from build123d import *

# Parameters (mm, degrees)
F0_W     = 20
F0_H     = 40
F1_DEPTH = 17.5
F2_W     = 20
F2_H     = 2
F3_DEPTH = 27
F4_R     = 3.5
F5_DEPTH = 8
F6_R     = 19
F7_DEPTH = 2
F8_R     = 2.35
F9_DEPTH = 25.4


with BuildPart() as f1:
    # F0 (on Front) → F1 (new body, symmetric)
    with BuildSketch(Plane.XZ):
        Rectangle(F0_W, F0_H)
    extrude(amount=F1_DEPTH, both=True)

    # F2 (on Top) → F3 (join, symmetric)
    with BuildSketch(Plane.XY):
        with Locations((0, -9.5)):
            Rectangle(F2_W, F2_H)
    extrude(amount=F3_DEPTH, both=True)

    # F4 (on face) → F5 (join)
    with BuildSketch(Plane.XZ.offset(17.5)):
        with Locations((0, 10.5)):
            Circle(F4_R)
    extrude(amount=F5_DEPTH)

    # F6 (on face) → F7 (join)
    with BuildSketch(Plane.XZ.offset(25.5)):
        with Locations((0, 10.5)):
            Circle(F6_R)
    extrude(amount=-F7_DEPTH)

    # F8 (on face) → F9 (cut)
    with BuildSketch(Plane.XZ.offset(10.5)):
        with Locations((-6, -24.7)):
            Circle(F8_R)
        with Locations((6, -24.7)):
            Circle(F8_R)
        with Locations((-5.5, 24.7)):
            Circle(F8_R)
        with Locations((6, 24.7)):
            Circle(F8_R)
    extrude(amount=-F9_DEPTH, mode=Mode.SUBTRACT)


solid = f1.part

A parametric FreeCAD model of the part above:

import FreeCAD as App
import Part
import Sketcher

doc = App.newDocument("Part")
body = doc.addObject("PartDesign::Body", "Body")

# Sketch on XZ plane
sketch1 = doc.addObject("Sketcher::SketchObject", "Sketch")
body.addObject(sketch1)
sketch1.AttachmentSupport = (doc.XZ_Plane, [""])
sketch1.MapMode = "FlatFace"
sketch1.addGeometry([
    Part.LineSegment(App.Vector(-10, 20, 0), App.Vector(-10, -20, 0)),
    Part.LineSegment(App.Vector(-10, -20, 0), App.Vector(10, -20, 0)),
    Part.LineSegment(App.Vector(10, -20, 0), App.Vector(10, 20, 0)),
    Part.LineSegment(App.Vector(10, 20, 0), App.Vector(-10, 20, 0)),
], False)
sketch1.addConstraint([
    Sketcher.Constraint("Coincident", 0, 2, 1, 1),
    Sketcher.Constraint("Coincident", 1, 2, 2, 1),
    Sketcher.Constraint("Coincident", 2, 2, 3, 1),
    Sketcher.Constraint("Coincident", 3, 2, 0, 1),
    Sketcher.Constraint("Vertical", 0),
    Sketcher.Constraint("Horizontal", 1),
    Sketcher.Constraint("Vertical", 2),
    Sketcher.Constraint("Horizontal", 3),
    Sketcher.Constraint("Symmetric", 0, 2, 2, 2, -1, 1),
    Sketcher.Constraint("DistanceX", 1, 1, 1, 2, 20.0),
    Sketcher.Constraint("DistanceY", 0, 2, 0, 1, 40.0),
])
pad1 = doc.addObject("PartDesign::Pad", "Pad")
body.addObject(pad1)
pad1.Profile = sketch1
pad1.Length = 35
pad1.Midplane = True

# Sketch on XY plane
sketch2 = doc.addObject("Sketcher::SketchObject", "Sketch001")
body.addObject(sketch2)
sketch2.AttachmentSupport = (doc.XY_Plane, [""])
sketch2.MapMode = "FlatFace"
sketch2.addGeometry([
    Part.LineSegment(App.Vector(-10, -8.5, 0), App.Vector(-10, -10.5, 0)),
    Part.LineSegment(App.Vector(-10, -10.5, 0), App.Vector(10, -10.5, 0)),
    Part.LineSegment(App.Vector(10, -10.5, 0), App.Vector(10, -8.5, 0)),
    Part.LineSegment(App.Vector(10, -8.5, 0), App.Vector(-10, -8.5, 0)),
], False)
sketch2.addConstraint([
    Sketcher.Constraint("Coincident", 0, 2, 1, 1),
    Sketcher.Constraint("Coincident", 1, 2, 2, 1),
    Sketcher.Constraint("Coincident", 2, 2, 3, 1),
    Sketcher.Constraint("Coincident", 3, 2, 0, 1),
    Sketcher.Constraint("Vertical", 0),
    Sketcher.Constraint("Horizontal", 1),
    Sketcher.Constraint("Vertical", 2),
    Sketcher.Constraint("Horizontal", 3),
    Sketcher.Constraint("DistanceX", 1, 1, 1, 2, 20.0),
    Sketcher.Constraint("DistanceY", 0, 2, 0, 1, 2.0),
    Sketcher.Constraint("DistanceX", 0, 2, -1, 1, 10.0),
    Sketcher.Constraint("DistanceY", 0, 2, -1, 1, 10.5),
])
pad2 = doc.addObject("PartDesign::Pad", "Pad001")
body.addObject(pad2)
pad2.Profile = sketch2
pad2.Length = 54
pad2.Midplane = True

# Sketch on XZ plane
sketch3 = doc.addObject("Sketcher::SketchObject", "Sketch002")
body.addObject(sketch3)
sketch3.AttachmentSupport = (doc.XZ_Plane, [""])
sketch3.MapMode = "FlatFace"
sketch3.AttachmentOffset = App.Placement(App.Vector(0, 0, 17.5), App.Rotation())
sketch3.addGeometry(Part.Circle(App.Vector(0, 10.5, 0), App.Vector(0, 0, 1), 3.5), False)
sketch3.addConstraint([
    Sketcher.Constraint("PointOnObject", 0, 3, -2),
    Sketcher.Constraint("Diameter", 0, 7.0),
    Sketcher.Constraint("DistanceY", -1, 1, 0, 3, 10.5),
])
pad3 = doc.addObject("PartDesign::Pad", "Pad002")
body.addObject(pad3)
pad3.Profile = sketch3
pad3.Length = 8

# Sketch on XZ plane
sketch4 = doc.addObject("Sketcher::SketchObject", "Sketch003")
body.addObject(sketch4)
sketch4.AttachmentSupport = (doc.XZ_Plane, [""])
sketch4.MapMode = "FlatFace"
sketch4.AttachmentOffset = App.Placement(App.Vector(0, 0, 25.5), App.Rotation())
sketch4.addGeometry(Part.Circle(App.Vector(0, 10, 0), App.Vector(0, 0, 1), 19), False)
sketch4.addConstraint([
    Sketcher.Constraint("PointOnObject", 0, 3, -2),
    Sketcher.Constraint("Diameter", 0, 38.0),
    Sketcher.Constraint("DistanceY", -1, 1, 0, 3, 10.5),
])
pad4 = doc.addObject("PartDesign::Pad", "Pad003")
body.addObject(pad4)
pad4.Profile = sketch4
pad4.Length = 2
pad4.Reversed = True

# Sketch on XZ plane
sketch5 = doc.addObject("Sketcher::SketchObject", "Sketch004")
body.addObject(sketch5)
sketch5.AttachmentSupport = (doc.XZ_Plane, [""])
sketch5.MapMode = "FlatFace"
sketch5.AttachmentOffset = App.Placement(App.Vector(0, 0, 10.5), App.Rotation())
sketch5.addGeometry([
    Part.Circle(App.Vector(-6, -24.7, 0), App.Vector(0, 0, 1), 2.4),
    Part.Circle(App.Vector(6, -24.7, 0), App.Vector(0, 0, 1), 2.4),
    Part.Circle(App.Vector(-5.5, 24.7, 0), App.Vector(0, 0, 1), 2.4),
    Part.Circle(App.Vector(6, 24.7, 0), App.Vector(0, 0, 1), 2.4),
], False)
sketch5.addConstraint([
    Sketcher.Constraint("Equal", 0, 1),
    Sketcher.Constraint("Equal", 1, 2),
    Sketcher.Constraint("Equal", 2, 3),
    Sketcher.Constraint("Symmetric", 0, 3, 3, 3, -1, 1),
    Sketcher.Constraint("Symmetric", 0, 3, 1, 3, -2),
    Sketcher.Constraint("Horizontal", 2, 3, 3, 3),
    Sketcher.Constraint("Diameter", 0, 4.7),
    Sketcher.Constraint("DistanceX", 0, 3, -1, 1, 6.0),
    Sketcher.Constraint("DistanceY", 0, 3, -1, 1, 24.7),
    Sketcher.Constraint("DistanceX", 2, 3, -1, 1, 5.5),
])
pocket1 = doc.addObject("PartDesign::Pocket", "Pocket")
body.addObject(pocket1)
pocket1.Profile = sketch5
pocket1.Length = 25.4

doc.recompute()
